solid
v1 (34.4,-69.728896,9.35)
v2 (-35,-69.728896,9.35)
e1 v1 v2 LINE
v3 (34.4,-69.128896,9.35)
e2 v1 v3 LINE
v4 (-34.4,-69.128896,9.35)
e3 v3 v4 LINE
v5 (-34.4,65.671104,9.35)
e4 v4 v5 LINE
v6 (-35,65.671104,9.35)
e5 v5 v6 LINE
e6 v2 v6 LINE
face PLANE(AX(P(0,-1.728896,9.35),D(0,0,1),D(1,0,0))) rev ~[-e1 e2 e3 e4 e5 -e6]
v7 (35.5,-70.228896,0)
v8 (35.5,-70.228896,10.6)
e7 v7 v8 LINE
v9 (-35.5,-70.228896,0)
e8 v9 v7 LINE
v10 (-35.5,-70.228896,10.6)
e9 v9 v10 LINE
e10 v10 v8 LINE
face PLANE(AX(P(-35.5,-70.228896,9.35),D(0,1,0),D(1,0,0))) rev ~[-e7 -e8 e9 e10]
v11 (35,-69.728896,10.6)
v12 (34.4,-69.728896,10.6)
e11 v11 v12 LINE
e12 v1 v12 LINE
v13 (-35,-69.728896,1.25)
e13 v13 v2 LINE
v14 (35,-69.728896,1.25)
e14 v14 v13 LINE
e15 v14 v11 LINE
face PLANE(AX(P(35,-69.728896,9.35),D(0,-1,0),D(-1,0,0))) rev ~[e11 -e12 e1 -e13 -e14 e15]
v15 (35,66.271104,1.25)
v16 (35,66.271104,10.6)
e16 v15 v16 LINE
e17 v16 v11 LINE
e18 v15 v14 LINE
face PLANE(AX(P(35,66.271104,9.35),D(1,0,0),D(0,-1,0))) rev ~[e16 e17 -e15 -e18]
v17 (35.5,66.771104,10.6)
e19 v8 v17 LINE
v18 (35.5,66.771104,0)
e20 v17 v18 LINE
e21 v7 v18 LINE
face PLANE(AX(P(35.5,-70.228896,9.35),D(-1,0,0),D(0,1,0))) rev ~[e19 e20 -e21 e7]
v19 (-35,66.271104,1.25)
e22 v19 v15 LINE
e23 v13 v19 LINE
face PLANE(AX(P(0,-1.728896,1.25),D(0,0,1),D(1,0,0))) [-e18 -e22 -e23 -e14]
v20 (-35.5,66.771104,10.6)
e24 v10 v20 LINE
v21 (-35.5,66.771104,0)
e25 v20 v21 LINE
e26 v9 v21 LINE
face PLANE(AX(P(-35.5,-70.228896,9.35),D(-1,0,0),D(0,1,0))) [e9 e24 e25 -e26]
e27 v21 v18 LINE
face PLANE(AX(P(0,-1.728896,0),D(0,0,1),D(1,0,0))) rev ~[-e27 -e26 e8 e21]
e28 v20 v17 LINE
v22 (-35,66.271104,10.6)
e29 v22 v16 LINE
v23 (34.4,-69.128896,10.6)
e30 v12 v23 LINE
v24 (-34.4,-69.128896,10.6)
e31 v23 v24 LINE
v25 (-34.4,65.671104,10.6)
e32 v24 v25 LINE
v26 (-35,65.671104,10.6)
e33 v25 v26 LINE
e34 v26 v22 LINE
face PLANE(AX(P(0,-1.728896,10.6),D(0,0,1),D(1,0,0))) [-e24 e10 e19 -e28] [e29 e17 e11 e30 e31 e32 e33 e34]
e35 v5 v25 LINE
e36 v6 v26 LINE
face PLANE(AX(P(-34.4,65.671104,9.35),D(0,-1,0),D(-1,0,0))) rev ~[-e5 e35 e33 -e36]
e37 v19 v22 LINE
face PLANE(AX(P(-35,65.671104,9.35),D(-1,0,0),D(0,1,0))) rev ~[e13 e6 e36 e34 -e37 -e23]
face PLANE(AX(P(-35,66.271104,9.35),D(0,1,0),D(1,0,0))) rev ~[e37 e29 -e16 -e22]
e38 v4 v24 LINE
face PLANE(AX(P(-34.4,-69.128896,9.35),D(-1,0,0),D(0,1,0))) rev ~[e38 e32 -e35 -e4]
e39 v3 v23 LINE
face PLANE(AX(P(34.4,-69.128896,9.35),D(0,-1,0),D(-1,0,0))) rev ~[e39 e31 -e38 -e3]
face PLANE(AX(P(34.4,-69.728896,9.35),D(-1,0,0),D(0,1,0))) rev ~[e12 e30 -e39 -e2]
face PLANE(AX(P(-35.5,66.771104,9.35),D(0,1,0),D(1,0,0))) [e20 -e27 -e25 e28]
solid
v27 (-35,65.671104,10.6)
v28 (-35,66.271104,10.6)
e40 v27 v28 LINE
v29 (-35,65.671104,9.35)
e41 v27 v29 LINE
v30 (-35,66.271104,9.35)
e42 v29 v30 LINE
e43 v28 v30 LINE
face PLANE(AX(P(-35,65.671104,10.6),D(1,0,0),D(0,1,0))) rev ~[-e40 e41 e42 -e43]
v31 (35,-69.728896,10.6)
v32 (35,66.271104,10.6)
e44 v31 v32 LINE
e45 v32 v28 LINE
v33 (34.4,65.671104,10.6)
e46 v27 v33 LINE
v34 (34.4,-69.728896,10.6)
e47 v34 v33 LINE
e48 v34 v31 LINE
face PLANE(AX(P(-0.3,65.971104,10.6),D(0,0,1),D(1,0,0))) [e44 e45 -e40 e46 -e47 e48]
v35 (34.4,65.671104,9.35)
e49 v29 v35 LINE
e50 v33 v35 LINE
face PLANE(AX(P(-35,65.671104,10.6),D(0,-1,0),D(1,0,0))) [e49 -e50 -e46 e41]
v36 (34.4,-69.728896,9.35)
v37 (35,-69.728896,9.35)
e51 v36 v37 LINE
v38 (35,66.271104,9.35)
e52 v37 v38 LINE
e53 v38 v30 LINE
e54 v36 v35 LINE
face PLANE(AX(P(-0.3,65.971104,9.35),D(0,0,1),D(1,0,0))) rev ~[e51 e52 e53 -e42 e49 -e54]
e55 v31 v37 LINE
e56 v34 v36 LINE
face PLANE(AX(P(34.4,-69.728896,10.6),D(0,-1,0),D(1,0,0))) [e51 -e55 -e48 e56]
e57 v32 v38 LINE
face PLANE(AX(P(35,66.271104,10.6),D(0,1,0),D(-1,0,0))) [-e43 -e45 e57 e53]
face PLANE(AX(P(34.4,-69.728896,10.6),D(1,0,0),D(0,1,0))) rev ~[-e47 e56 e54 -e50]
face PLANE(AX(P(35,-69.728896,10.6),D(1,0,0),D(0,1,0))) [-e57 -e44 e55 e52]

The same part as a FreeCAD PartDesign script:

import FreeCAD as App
import Part
import Sketcher
from FreeCAD import Vector


def add_polygon(sketch, points):
    """Adds a closed chain of lines whose ends are joined by coincident constraints."""
    first, n = sketch.GeometryCount, len(points)
    for a, b in zip(points, points[1:] + points[:1]):
        sketch.addGeometry(Part.LineSegment(App.Vector(*a, 0), App.Vector(*b, 0)), False)
    for i in range(n):
        sketch.addConstraint(Sketcher.Constraint("Coincident", first + i, 2, first + (i + 1) % n, 1))

doc = App.newDocument("Part")
body = doc.addObject("PartDesign::Body", "Body")

sketch1 = body.newObject("Sketcher::SketchObject", "Sketch")
sketch1.AttachmentSupport = (doc.getObject("XY_Plane"), [""])
sketch1.MapMode = "FlatFace"
add_polygon(sketch1, [(-35.5, 66.771104), (-35.5, -70.228896), (35.5, -70.228896), (35.5, 66.771104)])
sketch1.addConstraint(Sketcher.Constraint("Vertical", 0))
sketch1.addConstraint(Sketcher.Constraint("Horizontal", 1))
sketch1.addConstraint(Sketcher.Constraint("Vertical", 2))
sketch1.addConstraint(Sketcher.Constraint("Horizontal", 3))
sketch1.addConstraint(Sketcher.Constraint("DistanceX", 1, 1, 1, 2, 71.0))
sketch1.addConstraint(Sketcher.Constraint("DistanceY", 0, 2, 0, 1, 137.0))
sketch1.addConstraint(Sketcher.Constraint("DistanceX", 0, 2, -1, 1, 35.5))
sketch1.addConstraint(Sketcher.Constraint("DistanceY", 0, 2, -1, 1, 70.228896))
pad1 = body.newObject("PartDesign::Pad", "Pad")
pad1.Profile = sketch1
pad1.Length = 1.25

sketch2 = body.newObject("Sketcher::SketchObject", "Sketch001")
sketch2.AttachmentSupport = (doc.getObject("XY_Plane"), [""])
sketch2.MapMode = "FlatFace"
sketch2.AttachmentOffset = App.Placement(Vector(0, 0, 1.25), App.Rotation())
add_polygon(sketch2, [(-35.5, 66.771104), (-35.5, -70.228896), (35.5, -70.228896), (35.5, 66.771104)])
add_polygon(sketch2, [(35, -69.728896), (-35, -69.728896), (-35, 66.271104), (35, 66.271104)])
sketch2.addConstraint(Sketcher.Constraint("Vertical", 0))
sketch2.addConstraint(Sketcher.Constraint("Horizontal", 1))
sketch2.addConstraint(Sketcher.Constraint("Vertical", 2))
sketch2.addConstraint(Sketcher.Constraint("Horizontal", 3))
sketch2.addConstraint(Sketcher.Constraint("Horizontal", 4))
sketch2.addConstraint(Sketcher.Constraint("Vertical", 5))
sketch2.addConstraint(Sketcher.Constraint("Horizontal", 6))
sketch2.addConstraint(Sketcher.Constraint("Vertical", 7))
sketch2.addConstraint(Sketcher.Constraint("DistanceX", 1, 1, 1, 2, 71.0))
sketch2.addConstraint(Sketcher.Constraint("DistanceX", 4, 2, 4, 1, 70.0))
sketch2.addConstraint(Sketcher.Constraint("DistanceY", 0, 2, 0, 1, 137.0))
sketch2.addConstraint(Sketcher.Constraint("DistanceY", 5, 1, 5, 2, 136.0))
sketch2.addConstraint(Sketcher.Constraint("DistanceX", 4, 2, -1, 1, 35.0))
sketch2.addConstraint(Sketcher.Constraint("DistanceX", 0, 2, -1, 1, 35.5))
sketch2.addConstraint(Sketcher.Constraint("DistanceY", 0, 2, 4, 2, 0.5))
sketch2.addConstraint(Sketcher.Constraint("DistanceY", 0, 2, -1, 1, 70.228896))
pad2 = body.newObject("PartDesign::Pad", "Pad001")
pad2.Profile = sketch2
pad2.Length = 8.1

sketch3 = body.newObject("Sketcher::SketchObject", "Sketch002")
sketch3.AttachmentSupport = (doc.getObject("XY_Plane"), [""])
sketch3.MapMode = "FlatFace"
sketch3.AttachmentOffset = App.Placement(Vector(0, 0, 9.35), App.Rotation())
add_polygon(sketch3, [(-35.5, 66.771104), (-35.5, -70.228896), (35.5, -70.228896), (35.5, 66.771104)])
add_polygon(sketch3, [(-35, 65.671104), (-35, 66.271104), (35, 66.271104), (35, -69.728896), (34.4, -69.728896), (34.4, -69.128896), (-34.4, -69.128896), (-34.4, 65.671104)])
sketch3.addConstraint(Sketcher.Constraint("Vertical", 0))
sketch3.addConstraint(Sketcher.Constraint("Horizontal", 1))
sketch3.addConstraint(Sketcher.Constraint("Vertical", 2))
sketch3.addConstraint(Sketcher.Constraint("Horizontal", 3))
sketch3.addConstraint(Sketcher.Constraint("Vertical", 4))
sketch3.addConstraint(Sketcher.Constraint("Horizontal", 5))
sketch3.addConstraint(Sketcher.Constraint("Vertical", 6))
sketch3.addConstraint(Sketcher.Constraint("Horizontal", 7))
sketch3.addConstraint(Sketcher.Constraint("Vertical", 8))
sketch3.addConstraint(Sketcher.Constraint("Horizontal", 9))
sketch3.addConstraint(Sketcher.Constraint("Vertical", 10))
sketch3.addConstraint(Sketcher.Constraint("Horizontal", 11))
sketch3.addConstraint(Sketcher.Constraint("Equal", 7, 11))
sketch3.addConstraint(Sketcher.Constraint("Equal", 11, 4))
sketch3.addConstraint(Sketcher.Constraint("Equal", 4, 8))
sketch3.addConstraint(Sketcher.Constraint("DistanceX", 1, 1, 1, 2, 71.0))
sketch3.addConstraint(Sketcher.Constraint("DistanceX", 5, 1, 5, 2, 70.0))
sketch3.addConstraint(Sketcher.Constraint("DistanceY", 0, 2, 0, 1, 137.0))
sketch3.addConstraint(Sketcher.Constraint("DistanceY", 6, 2, 6, 1, 136.0))
sketch3.addConstraint(Sketcher.Constraint("DistanceX", 7, 2, 7, 1, 0.6))
sketch3.addConstraint(Sketcher.Constraint("DistanceX", 4, 2, -1, 1, 35.0))
sketch3.addConstraint(Sketcher.Constraint("DistanceX", 0, 2, -1, 1, 35.5))
sketch3.addConstraint(Sketcher.Constraint("DistanceY", 4, 2, 3, 2, 0.5))
sketch3.addConstraint(Sketcher.Constraint("DistanceY", 0, 2, -1, 1, 70.228896))
pad3 = body.newObject("PartDesign::Pad", "Pad002")
pad3.Profile = sketch3
pad3.Length = 1.25
body2 = doc.addObject("PartDesign::Body", "Body001")

sketch4 = body2.newObject("Sketcher::SketchObject", "Sketch003")
sketch4.AttachmentSupport = (doc.getObject("XY_Plane001"), [""])
sketch4.MapMode = "FlatFace"
sketch4.AttachmentOffset = App.Placement(Vector(0, 0, 10.6), App.Rotation())
add_polygon(sketch4, [(-35, 66.271104), (-35, 65.671104), (34.4, 65.671104), (34.4, -69.728896), (35, -69.728896), (35, 66.271104)])
sketch4.addConstraint(Sketcher.Constraint("Vertical", 0))
sketch4.addConstraint(Sketcher.Constraint("Horizontal", 1))
sketch4.addConstraint(Sketcher.Constraint("Vertical", 2))
sketch4.addConstraint(Sketcher.Constraint("Horizontal", 3))
sketch4.addConstraint(Sketcher.Constraint("Vertical", 4))
sketch4.addConstraint(Sketcher.Constraint("Horizontal", 5))
sketch4.addConstraint(Sketcher.Constraint("Equal", 3, 0))
sketch4.addConstraint(Sketcher.Constraint("DistanceX", 5, 2, 5, 1, 70.0))
sketch4.addConstraint(Sketcher.Constraint("DistanceY", 4, 1, 4, 2, 136.0))
sketch4.addConstraint(Sketcher.Constraint("DistanceX", 1, 1, 1, 2, 69.4))
sketch4.addConstraint(Sketcher.Constraint("DistanceX", 0, 2, -1, 1, 35.0))
sketch4.addConstraint(Sketcher.Constraint("DistanceY", -1, 1, 0, 2, 65.671104))
pad4 = body2.newObject("PartDesign::Pad", "Pad003")
pad4.Profile = sketch4
pad4.Length = 1.25
pad4.Reversed = True

doc.recompute()
